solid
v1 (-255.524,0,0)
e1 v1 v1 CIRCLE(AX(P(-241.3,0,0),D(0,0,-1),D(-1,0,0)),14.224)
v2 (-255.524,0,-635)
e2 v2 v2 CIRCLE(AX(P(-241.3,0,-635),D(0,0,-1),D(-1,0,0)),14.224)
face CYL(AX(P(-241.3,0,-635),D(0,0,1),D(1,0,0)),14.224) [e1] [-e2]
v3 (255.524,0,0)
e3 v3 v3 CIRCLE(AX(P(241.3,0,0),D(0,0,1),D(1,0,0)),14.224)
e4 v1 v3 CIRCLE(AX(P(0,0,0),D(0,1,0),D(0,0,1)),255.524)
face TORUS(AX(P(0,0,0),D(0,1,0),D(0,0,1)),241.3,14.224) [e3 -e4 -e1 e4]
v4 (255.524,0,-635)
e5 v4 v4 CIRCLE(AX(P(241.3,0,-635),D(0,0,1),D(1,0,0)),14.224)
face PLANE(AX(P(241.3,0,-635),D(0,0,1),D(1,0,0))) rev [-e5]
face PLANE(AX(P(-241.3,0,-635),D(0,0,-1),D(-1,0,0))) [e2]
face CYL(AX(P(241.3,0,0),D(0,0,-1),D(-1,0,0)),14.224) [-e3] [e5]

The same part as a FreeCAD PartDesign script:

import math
import FreeCAD as App
import Part
import Sketcher
from FreeCAD import Vector
Q = App.Units.Quantity

doc = App.newDocument("Part")
body = doc.addObject("PartDesign::Body", "Body")

# Sketch on XY plane
sketch1 = body.newObject("Sketcher::SketchObject", "Sketch")
sketch1.AttachmentSupport = (doc.getObject("XY_Plane"), [""])
sketch1.MapMode = "FlatFace"
sketch1.AttachmentOffset = App.Placement(Vector(0, 0, -25 * 25.4), App.Rotation())
sketch1.addGeometry(Part.Circle(Vector(-241, 0, 0), Vector(0, 0, 1), 14), False)
sketch1.addConstraint([
    Sketcher.Constraint("PointOnObject", 0, 3, -1),
    Sketcher.Constraint("Diameter", 0, Q("1.12 in")),
    Sketcher.Constraint("DistanceX", 0, 3, -1, 1, Q("9.5 in")),
])

# Sketch on XZ plane
sketch2 = body.newObject("Sketcher::SketchObject", "Sketch001")
sketch2.AttachmentSupport = (doc.getObject("XZ_Plane"), [""])
sketch2.MapMode = "FlatFace"
sketch2.addGeometry([
    Part.LineSegment(Vector(-241, -635, 0), Vector(-241, 0, 0)),
    Part.ArcOfCircle(Part.Circle(Vector(0, 0, 0), Vector(0, 0, 1), 241), math.radians(0), math.radians(180)),
    Part.LineSegment(Vector(241, 0, 0), Vector(241, -635, 0)),
], False)
sketch2.addConstraint([
    Sketcher.Constraint("Tangent", 0, 2, 1, 2),
    Sketcher.Constraint("Tangent", 1, 1, 2, 1),
    Sketcher.Constraint("Vertical", 0),
    Sketcher.Constraint("Vertical", 2),
    Sketcher.Constraint("Coincident", 1, 3, -1, 1),
    Sketcher.Constraint("Horizontal", 0, 1, 2, 2),
    Sketcher.Constraint("Radius", 1, Q("9.5 in")),
    Sketcher.Constraint("DistanceY", 0, 1, 0, 2, Q("25 in")),
])
doc.recompute()

additivepipe = body.newObject("PartDesign::AdditivePipe", "AdditivePipe")
additivepipe.Profile = sketch1
additivepipe.Spine = (sketch2, ["Edge1", "Edge2", "Edge3"])

doc.recompute()
